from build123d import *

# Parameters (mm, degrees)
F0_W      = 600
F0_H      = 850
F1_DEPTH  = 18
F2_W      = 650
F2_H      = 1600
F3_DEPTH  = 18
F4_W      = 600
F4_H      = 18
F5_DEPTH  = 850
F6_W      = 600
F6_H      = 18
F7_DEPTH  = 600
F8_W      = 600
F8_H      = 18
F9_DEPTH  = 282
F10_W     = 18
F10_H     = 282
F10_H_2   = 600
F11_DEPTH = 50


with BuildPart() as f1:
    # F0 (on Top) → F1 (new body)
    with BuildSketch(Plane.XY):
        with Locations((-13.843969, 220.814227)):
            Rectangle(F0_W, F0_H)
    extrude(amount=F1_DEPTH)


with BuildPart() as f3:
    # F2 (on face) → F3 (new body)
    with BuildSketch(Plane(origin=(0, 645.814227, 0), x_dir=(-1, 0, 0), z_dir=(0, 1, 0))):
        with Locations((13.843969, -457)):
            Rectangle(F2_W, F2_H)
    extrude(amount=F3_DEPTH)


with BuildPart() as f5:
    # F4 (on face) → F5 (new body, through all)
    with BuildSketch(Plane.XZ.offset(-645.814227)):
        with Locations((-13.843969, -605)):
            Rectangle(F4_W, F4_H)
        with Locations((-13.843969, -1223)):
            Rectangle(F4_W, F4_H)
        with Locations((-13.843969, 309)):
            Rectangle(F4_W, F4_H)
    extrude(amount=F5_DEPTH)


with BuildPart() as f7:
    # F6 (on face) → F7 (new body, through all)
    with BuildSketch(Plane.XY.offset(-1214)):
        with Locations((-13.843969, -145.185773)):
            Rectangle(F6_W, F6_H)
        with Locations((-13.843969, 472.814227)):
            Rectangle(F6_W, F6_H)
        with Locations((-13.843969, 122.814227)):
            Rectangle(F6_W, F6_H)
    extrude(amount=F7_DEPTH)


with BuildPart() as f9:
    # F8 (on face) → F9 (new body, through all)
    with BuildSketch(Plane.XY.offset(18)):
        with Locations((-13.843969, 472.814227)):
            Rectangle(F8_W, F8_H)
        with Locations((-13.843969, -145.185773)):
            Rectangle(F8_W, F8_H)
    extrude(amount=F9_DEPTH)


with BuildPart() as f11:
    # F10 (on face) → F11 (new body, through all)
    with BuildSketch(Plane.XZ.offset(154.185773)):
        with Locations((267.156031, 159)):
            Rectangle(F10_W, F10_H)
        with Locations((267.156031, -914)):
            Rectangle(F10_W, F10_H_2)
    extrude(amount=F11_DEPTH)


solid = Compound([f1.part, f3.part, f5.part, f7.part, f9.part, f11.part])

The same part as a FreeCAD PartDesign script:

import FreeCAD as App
import Part
import Sketcher

V = App.Vector

doc = App.newDocument("Part")
body = doc.addObject("PartDesign::Body", "Body")

# Sketch on XY plane
sketch1 = body.newObject("Sketcher::SketchObject", "Sketch")
sketch1.AttachmentSupport = (doc.getObject("XY_Plane"), [""])
sketch1.MapMode = "FlatFace"
sketch1.addGeometry([
    Part.LineSegment(V(-314, 646, 0), V(-314, -204, 0)),
    Part.LineSegment(V(-314, -204, 0), V(286, -204, 0)),
    Part.LineSegment(V(286, -204, 0), V(286, 646, 0)),
    Part.LineSegment(V(286, 646, 0), V(-314, 646, 0)),
], False)
sketch1.addConstraint([
    Sketcher.Constraint("Coincident", 0, 2, 1, 1),
    Sketcher.Constraint("Coincident", 1, 2, 2, 1),
    Sketcher.Constraint("Coincident", 2, 2, 3, 1),
    Sketcher.Constraint("Coincident", 3, 2, 0, 1),
    Sketcher.Constraint("Vertical", 0),
    Sketcher.Constraint("Horizontal", 1),
    Sketcher.Constraint("Vertical", 2),
    Sketcher.Constraint("Horizontal", 3),
    Sketcher.Constraint("DistanceX", 1, 1, 1, 2, 600.0),
    Sketcher.Constraint("DistanceY", 0, 2, 0, 1, 850.0),
    Sketcher.Constraint("DistanceX", 0, 2, -1, 1, 313.843969),
    Sketcher.Constraint("DistanceY", 0, 2, -1, 1, 204.185773),
])
pad1 = body.newObject("PartDesign::Pad", "Pad")
pad1.Profile = sketch1
pad1.Length = 18
body2 = doc.addObject("PartDesign::Body", "Body001")

# Sketch on XZ plane
sketch2 = body2.newObject("Sketcher::SketchObject", "Sketch001")
sketch2.AttachmentSupport = (doc.getObject("XZ_Plane001"), [""])
sketch2.MapMode = "FlatFace"
sketch2.AttachmentOffset = App.Placement(V(0, 0, -645.814227), App.Rotation())
sketch2.addGeometry([
    Part.LineSegment(V(311, 343, 0), V(311, -1257, 0)),
    Part.LineSegment(V(311, -1257, 0), V(-339, -1257, 0)),
    Part.LineSegment(V(-339, -1257, 0), V(-339, 343, 0)),
    Part.LineSegment(V(-339, 343, 0), V(311, 343, 0)),
], False)
sketch2.addConstraint([
    Sketcher.Constraint("Coincident", 0, 2, 1, 1),
    Sketcher.Constraint("Coincident", 1, 2, 2, 1),
    Sketcher.Constraint("Coincident", 2, 2, 3, 1),
    Sketcher.Constraint("Coincident", 3, 2, 0, 1),
    Sketcher.Constraint("Vertical", 0),
    Sketcher.Constraint("Horizontal", 1),
    Sketcher.Constraint("Vertical", 2),
    Sketcher.Constraint("Horizontal", 3),
    Sketcher.Constraint("DistanceX", 1, 2, 1, 1, 650.0),
    Sketcher.Constraint("DistanceY", 0, 2, 0, 1, 1600.0),
    Sketcher.Constraint("DistanceY", 0, 2, -1, 1, 1257.0),
    Sketcher.Constraint("DistanceX", -1, 1, 0, 2, 311.156031),
])
pad2 = body2.newObject("PartDesign::Pad", "Pad001")
pad2.Profile = sketch2
pad2.Length = 18
pad2.Reversed = True
body3 = doc.addObject("PartDesign::Body", "Body002")
body3.AllowCompound = True

# Sketch on XZ plane
sketch3 = body3.newObject("Sketcher::SketchObject", "Sketch002")
sketch3.AttachmentSupport = (doc.getObject("XZ_Plane002"), [""])
sketch3.MapMode = "FlatFace"
sketch3.AttachmentOffset = App.Placement(V(0, 0, -645.814227), App.Rotation())
sketch3.addGeometry([
    Part.LineSegment(V(-314, -596, 0), V(-314, -614, 0)),  # 0
    Part.LineSegment(V(-314, -614, 0), V(286, -614, 0)),  # 1
    Part.LineSegment(V(286, -614, 0), V(286, -596, 0)),  # 2
    Part.LineSegment(V(286, -596, 0), V(-314, -596, 0)),  # 3
    Part.LineSegment(V(-314, -1214, 0), V(-314, -1232, 0)),  # 4
    Part.LineSegment(V(-314, -1232, 0), V(286, -1232, 0)),  # 5
    Part.LineSegment(V(286, -1232, 0), V(286, -1214, 0)),  # 6
    Part.LineSegment(V(286, -1214, 0), V(-314, -1214, 0)),  # 7
    Part.LineSegment(V(-314, 318, 0), V(-314, 300, 0)),  # 8
    Part.LineSegment(V(-314, 300, 0), V(286, 300, 0)),  # 9
    Part.LineSegment(V(286, 300, 0), V(286, 318, 0)),  # 10
    Part.LineSegment(V(286, 318, 0), V(-314, 318, 0)),  # 11
], False)
sketch3.addConstraint([
    Sketcher.Constraint("Coincident", 0, 2, 1, 1),
    Sketcher.Constraint("Coincident", 1, 2, 2, 1),
    Sketcher.Constraint("Coincident", 2, 2, 3, 1),
    Sketcher.Constraint("Coincident", 3, 2, 0, 1),
    Sketcher.Constraint("Coincident", 4, 2, 5, 1),
    Sketcher.Constraint("Coincident", 5, 2, 6, 1),
    Sketcher.Constraint("Coincident", 6, 2, 7, 1),
    Sketcher.Constraint("Coincident", 7, 2, 4, 1),
    Sketcher.Constraint("Coincident", 8, 2, 9, 1),
    Sketcher.Constraint("Coincident", 9, 2, 10, 1),
    Sketcher.Constraint("Coincident", 10, 2, 11, 1),
    Sketcher.Constraint("Coincident", 11, 2, 8, 1),
    Sketcher.Constraint("Vertical", 0),
    Sketcher.Constraint("Horizontal", 1),
    Sketcher.Constraint("Vertical", 2),
    Sketcher.Constraint("Horizontal", 3),
    Sketcher.Constraint("Vertical", 4),
    Sketcher.Constraint("Horizontal", 5),
    Sketcher.Constraint("Vertical", 6),
    Sketcher.Constraint("Horizontal", 7),
    Sketcher.Constraint("Vertical", 8),
    Sketcher.Constraint("Horizontal", 9),
    Sketcher.Constraint("Vertical", 10),
    Sketcher.Constraint("Horizontal", 11),
    Sketcher.Constraint("Vertical", 3, 2, 4, 2),
    Sketcher.Constraint("Vertical", 2, 2, 5, 2),
    Sketcher.Constraint("Vertical", 7, 2, 8, 2),
    Sketcher.Constraint("Vertical", 6, 2, 9, 2),
    Sketcher.Constraint("Equal", 2, 4),
    Sketcher.Constraint("Equal", 6, 8),
    Sketcher.Constraint("DistanceX", 1, 1, 1, 2, 600.0),
    Sketcher.Constraint("DistanceY", 0, 2, 0, 1, 18.0),
    Sketcher.Constraint("DistanceY", 0, 2, -1, 1, 614.0),
    Sketcher.Constraint("DistanceY", 4, 2, -1, 1, 1232.0),
    Sketcher.Constraint("DistanceY", -1, 1, 8, 2, 300.0),
    Sketcher.Constraint("DistanceX", 0, 2, -1, 1, 313.843969),
])
pad3 = body3.newObject("PartDesign::Pad", "Pad002")
pad3.Profile = sketch3
pad3.Length = 850
body4 = doc.addObject("PartDesign::Body", "Body003")
body4.AllowCompound = True

# Sketch on XY plane
sketch4 = body4.newObject("Sketcher::SketchObject", "Sketch003")
sketch4.AttachmentSupport = (doc.getObject("XY_Plane003"), [""])
sketch4.MapMode = "FlatFace"
sketch4.AttachmentOffset = App.Placement(V(0, 0, -1214), App.Rotation())
sketch4.addGeometry([
    Part.LineSegment(V(-314, -136, 0), V(-314, -154, 0)),  # 0
    Part.LineSegment(V(-314, -154, 0), V(286, -154, 0)),  # 1
    Part.LineSegment(V(286, -154, 0), V(286, -136, 0)),  # 2
    Part.LineSegment(V(286, -136, 0), V(-314, -136, 0)),  # 3
    Part.LineSegment(V(-314, 482, 0), V(-314, 464, 0)),  # 4
    Part.LineSegment(V(-314, 464, 0), V(286, 464, 0)),  # 5
    Part.LineSegment(V(286, 464, 0), V(286, 482, 0)),  # 6
    Part.LineSegment(V(286, 482, 0), V(-314, 482, 0)),  # 7
    Part.LineSegment(V(-314, 132, 0), V(-314, 114, 0)),  # 8
    Part.LineSegment(V(-314, 114, 0), V(286, 114, 0)),  # 9
    Part.LineSegment(V(286, 114, 0), V(286, 132, 0)),  # 10
    Part.LineSegment(V(286, 132, 0), V(-314, 132, 0)),  # 11
], False)
sketch4.addConstraint([
    Sketcher.Constraint("Coincident", 0, 2, 1, 1),
    Sketcher.Constraint("Coincident", 1, 2, 2, 1),
    Sketcher.Constraint("Coincident", 2, 2, 3, 1),
    Sketcher.Constraint("Coincident", 3, 2, 0, 1),
    Sketcher.Constraint("Coincident", 4, 2, 5, 1),
    Sketcher.Constraint("Coincident", 5, 2, 6, 1),
    Sketcher.Constraint("Coincident", 6, 2, 7, 1),
    Sketcher.Constraint("Coincident", 7, 2, 4, 1),
    Sketcher.Constraint("Coincident", 8, 2, 9, 1),
    Sketcher.Constraint("Coincident", 9, 2, 10, 1),
    Sketcher.Constraint("Coincident", 10, 2, 11, 1),
    Sketcher.Constraint("Coincident", 11, 2, 8, 1),
    Sketcher.Constraint("Vertical", 0),
    Sketcher.Constraint("Horizontal", 1),
    Sketcher.Constraint("Vertical", 2),
    Sketcher.Constraint("Horizontal", 3),
    Sketcher.Constraint("Vertical", 4),
    Sketcher.Constraint("Horizontal", 5),
    Sketcher.Constraint("Vertical", 6),
    Sketcher.Constraint("Horizontal", 7),
    Sketcher.Constraint("Vertical", 8),
    Sketcher.Constraint("Horizontal", 9),
    Sketcher.Constraint("Vertical", 10),
    Sketcher.Constraint("Horizontal", 11),
    Sketcher.Constraint("Vertical", 3, 2, 4, 2),
    Sketcher.Constraint("Vertical", 2, 2, 5, 2),
    Sketcher.Constraint("Vertical", 7, 2, 8, 2),
    Sketcher.Constraint("Vertical", 6, 2, 9, 2),
    Sketcher.Constraint("Equal", 2, 4),
    Sketcher.Constraint("Equal", 6, 8),
    Sketcher.Constraint("DistanceX", 1, 1, 1, 2, 600.0),
    Sketcher.Constraint("DistanceY", 0, 2, 0, 1, 18.0),
    Sketcher.Constraint("DistanceY", 3, 2, 4, 2, 600.0),
    Sketcher.Constraint("DistanceY", 3, 2, 8, 2, 250.0),
    Sketcher.Constraint("DistanceX", 0, 2, -1, 1, 313.843969),
    Sketcher.Constraint("DistanceY", 0, 2, -1, 1, 154.185773),
])
pad4 = body4.newObject("PartDesign::Pad", "Pad003")
pad4.Profile = sketch4
pad4.Length = 600
body5 = doc.addObject("PartDesign::Body", "Body004")
body5.AllowCompound = True

# Sketch on XY plane
sketch5 = body5.newObject("Sketcher::SketchObject", "Sketch004")
sketch5.AttachmentSupport = (doc.getObject("XY_Plane004"), [""])
sketch5.MapMode = "FlatFace"
sketch5.AttachmentOffset = App.Placement(V(0, 0, 18), App.Rotation())
sketch5.addGeometry([
    Part.LineSegment(V(-314, 482, 0), V(-314, 464, 0)),  # 0
    Part.LineSegment(V(-314, 464, 0), V(286, 464, 0)),  # 1
    Part.LineSegment(V(286, 464, 0), V(286, 482, 0)),  # 2
    Part.LineSegment(V(286, 482, 0), V(-314, 482, 0)),  # 3
    Part.LineSegment(V(-314, -136, 0), V(-314, -154, 0)),  # 4
    Part.LineSegment(V(-314, -154, 0), V(286, -154, 0)),  # 5
    Part.LineSegment(V(286, -154, 0), V(286, -136, 0)),  # 6
    Part.LineSegment(V(286, -136, 0), V(-314, -136, 0)),  # 7
], False)
sketch5.addConstraint([
    Sketcher.Constraint("Coincident", 0, 2, 1, 1),
    Sketcher.Constraint("Coincident", 1, 2, 2, 1),
    Sketcher.Constraint("Coincident", 2, 2, 3, 1),
    Sketcher.Constraint("Coincident", 3, 2, 0, 1),
    Sketcher.Constraint("Coincident", 4, 2, 5, 1),
    Sketcher.Constraint("Coincident", 5, 2, 6, 1),
    Sketcher.Constraint("Coincident", 6, 2, 7, 1),
    Sketcher.Constraint("Coincident", 7, 2, 4, 1),
    Sketcher.Constraint("Vertical", 0),
    Sketcher.Constraint("Horizontal", 1),
    Sketcher.Constraint("Vertical", 2),
    Sketcher.Constraint("Horizontal", 3),
    Sketcher.Constraint("Vertical", 4),
    Sketcher.Constraint("Horizontal", 5),
    Sketcher.Constraint("Vertical", 6),
    Sketcher.Constraint("Horizontal", 7),
    Sketcher.Constraint("Vertical", 3, 2, 4, 2),
    Sketcher.Constraint("Vertical", 2, 2, 5, 2),
    Sketcher.Constraint("Equal", 2, 4),
    Sketcher.Constraint("DistanceX", 1, 1, 1, 2, 600.0),
    Sketcher.Constraint("DistanceY", 0, 2, 0, 1, 18.0),
    Sketcher.Constraint("DistanceY", 4, 2, 0, 2, 618.0),
    Sketcher.Constraint("DistanceX", 0, 2, -1, 1, 313.843969),
    Sketcher.Constraint("DistanceY", -1, 1, 0, 2, 463.814227),
])
pad5 = body5.newObject("PartDesign::Pad", "Pad004")
pad5.Profile = sketch5
pad5.Length = 282
body6 = doc.addObject("PartDesign::Body", "Body005")
body6.AllowCompound = True

# Sketch on XZ plane
sketch6 = body6.newObject("Sketcher::SketchObject", "Sketch005")
sketch6.AttachmentSupport = (doc.getObject("XZ_Plane005"), [""])
sketch6.MapMode = "FlatFace"
sketch6.AttachmentOffset = App.Placement(V(0, 0, 154.185773), App.Rotation())
sketch6.addGeometry([
    Part.LineSegment(V(258, 300, 0), V(258, 18, 0)),  # 0
    Part.LineSegment(V(258, 18, 0), V(276, 18, 0)),  # 1
    Part.LineSegment(V(276, 18, 0), V(276, 300, 0)),  # 2
    Part.LineSegment(V(276, 300, 0), V(258, 300, 0)),  # 3
    Part.LineSegment(V(258, -614, 0), V(258, -1214, 0)),  # 4
    Part.LineSegment(V(258, -1214, 0), V(276, -1214, 0)),  # 5
    Part.LineSegment(V(276, -1214, 0), V(276, -614, 0)),  # 6
    Part.LineSegment(V(276, -614, 0), V(258, -614, 0)),  # 7
], False)
sketch6.addConstraint([
    Sketcher.Constraint("Coincident", 0, 2, 1, 1),
    Sketcher.Constraint("Coincident", 1, 2, 2, 1),
    Sketcher.Constraint("Coincident", 2, 2, 3, 1),
    Sketcher.Constraint("Coincident", 3, 2, 0, 1),
    Sketcher.Constraint("Coincident", 4, 2, 5, 1),
    Sketcher.Constraint("Coincident", 5, 2, 6, 1),
    Sketcher.Constraint("Coincident", 6, 2, 7, 1),
    Sketcher.Constraint("Coincident", 7, 2, 4, 1),
    Sketcher.Constraint("Vertical", 0),
    Sketcher.Constraint("Horizontal", 1),
    Sketcher.Constraint("Vertical", 2),
    Sketcher.Constraint("Horizontal", 3),
    Sketcher.Constraint("Vertical", 4),
    Sketcher.Constraint("Horizontal", 5),
    Sketcher.Constraint("Vertical", 6),
    Sketcher.Constraint("Horizontal", 7),
    Sketcher.Constraint("Vertical", 3, 2, 4, 2),
    Sketcher.Constraint("Vertical", 2, 2, 5, 2),
    Sketcher.Constraint("DistanceX", 1, 1, 1, 2, 18.0),
    Sketcher.Constraint("DistanceY", 0, 2, 0, 1, 282.0),
    Sketcher.Constraint("DistanceY", 4, 2, 4, 1, 600.0),
    Sketcher.Constraint("DistanceY", -1, 1, 0, 2, 18.0),
    Sketcher.Constraint("DistanceY", 4, 2, -1, 1, 1214.0),
    Sketcher.Constraint("DistanceX", -1, 1, 0, 2, 258.156031),
])
pad6 = body6.newObject("PartDesign::Pad", "Pad005")
pad6.Profile = sketch6
pad6.Length = 50

doc.recompute()
